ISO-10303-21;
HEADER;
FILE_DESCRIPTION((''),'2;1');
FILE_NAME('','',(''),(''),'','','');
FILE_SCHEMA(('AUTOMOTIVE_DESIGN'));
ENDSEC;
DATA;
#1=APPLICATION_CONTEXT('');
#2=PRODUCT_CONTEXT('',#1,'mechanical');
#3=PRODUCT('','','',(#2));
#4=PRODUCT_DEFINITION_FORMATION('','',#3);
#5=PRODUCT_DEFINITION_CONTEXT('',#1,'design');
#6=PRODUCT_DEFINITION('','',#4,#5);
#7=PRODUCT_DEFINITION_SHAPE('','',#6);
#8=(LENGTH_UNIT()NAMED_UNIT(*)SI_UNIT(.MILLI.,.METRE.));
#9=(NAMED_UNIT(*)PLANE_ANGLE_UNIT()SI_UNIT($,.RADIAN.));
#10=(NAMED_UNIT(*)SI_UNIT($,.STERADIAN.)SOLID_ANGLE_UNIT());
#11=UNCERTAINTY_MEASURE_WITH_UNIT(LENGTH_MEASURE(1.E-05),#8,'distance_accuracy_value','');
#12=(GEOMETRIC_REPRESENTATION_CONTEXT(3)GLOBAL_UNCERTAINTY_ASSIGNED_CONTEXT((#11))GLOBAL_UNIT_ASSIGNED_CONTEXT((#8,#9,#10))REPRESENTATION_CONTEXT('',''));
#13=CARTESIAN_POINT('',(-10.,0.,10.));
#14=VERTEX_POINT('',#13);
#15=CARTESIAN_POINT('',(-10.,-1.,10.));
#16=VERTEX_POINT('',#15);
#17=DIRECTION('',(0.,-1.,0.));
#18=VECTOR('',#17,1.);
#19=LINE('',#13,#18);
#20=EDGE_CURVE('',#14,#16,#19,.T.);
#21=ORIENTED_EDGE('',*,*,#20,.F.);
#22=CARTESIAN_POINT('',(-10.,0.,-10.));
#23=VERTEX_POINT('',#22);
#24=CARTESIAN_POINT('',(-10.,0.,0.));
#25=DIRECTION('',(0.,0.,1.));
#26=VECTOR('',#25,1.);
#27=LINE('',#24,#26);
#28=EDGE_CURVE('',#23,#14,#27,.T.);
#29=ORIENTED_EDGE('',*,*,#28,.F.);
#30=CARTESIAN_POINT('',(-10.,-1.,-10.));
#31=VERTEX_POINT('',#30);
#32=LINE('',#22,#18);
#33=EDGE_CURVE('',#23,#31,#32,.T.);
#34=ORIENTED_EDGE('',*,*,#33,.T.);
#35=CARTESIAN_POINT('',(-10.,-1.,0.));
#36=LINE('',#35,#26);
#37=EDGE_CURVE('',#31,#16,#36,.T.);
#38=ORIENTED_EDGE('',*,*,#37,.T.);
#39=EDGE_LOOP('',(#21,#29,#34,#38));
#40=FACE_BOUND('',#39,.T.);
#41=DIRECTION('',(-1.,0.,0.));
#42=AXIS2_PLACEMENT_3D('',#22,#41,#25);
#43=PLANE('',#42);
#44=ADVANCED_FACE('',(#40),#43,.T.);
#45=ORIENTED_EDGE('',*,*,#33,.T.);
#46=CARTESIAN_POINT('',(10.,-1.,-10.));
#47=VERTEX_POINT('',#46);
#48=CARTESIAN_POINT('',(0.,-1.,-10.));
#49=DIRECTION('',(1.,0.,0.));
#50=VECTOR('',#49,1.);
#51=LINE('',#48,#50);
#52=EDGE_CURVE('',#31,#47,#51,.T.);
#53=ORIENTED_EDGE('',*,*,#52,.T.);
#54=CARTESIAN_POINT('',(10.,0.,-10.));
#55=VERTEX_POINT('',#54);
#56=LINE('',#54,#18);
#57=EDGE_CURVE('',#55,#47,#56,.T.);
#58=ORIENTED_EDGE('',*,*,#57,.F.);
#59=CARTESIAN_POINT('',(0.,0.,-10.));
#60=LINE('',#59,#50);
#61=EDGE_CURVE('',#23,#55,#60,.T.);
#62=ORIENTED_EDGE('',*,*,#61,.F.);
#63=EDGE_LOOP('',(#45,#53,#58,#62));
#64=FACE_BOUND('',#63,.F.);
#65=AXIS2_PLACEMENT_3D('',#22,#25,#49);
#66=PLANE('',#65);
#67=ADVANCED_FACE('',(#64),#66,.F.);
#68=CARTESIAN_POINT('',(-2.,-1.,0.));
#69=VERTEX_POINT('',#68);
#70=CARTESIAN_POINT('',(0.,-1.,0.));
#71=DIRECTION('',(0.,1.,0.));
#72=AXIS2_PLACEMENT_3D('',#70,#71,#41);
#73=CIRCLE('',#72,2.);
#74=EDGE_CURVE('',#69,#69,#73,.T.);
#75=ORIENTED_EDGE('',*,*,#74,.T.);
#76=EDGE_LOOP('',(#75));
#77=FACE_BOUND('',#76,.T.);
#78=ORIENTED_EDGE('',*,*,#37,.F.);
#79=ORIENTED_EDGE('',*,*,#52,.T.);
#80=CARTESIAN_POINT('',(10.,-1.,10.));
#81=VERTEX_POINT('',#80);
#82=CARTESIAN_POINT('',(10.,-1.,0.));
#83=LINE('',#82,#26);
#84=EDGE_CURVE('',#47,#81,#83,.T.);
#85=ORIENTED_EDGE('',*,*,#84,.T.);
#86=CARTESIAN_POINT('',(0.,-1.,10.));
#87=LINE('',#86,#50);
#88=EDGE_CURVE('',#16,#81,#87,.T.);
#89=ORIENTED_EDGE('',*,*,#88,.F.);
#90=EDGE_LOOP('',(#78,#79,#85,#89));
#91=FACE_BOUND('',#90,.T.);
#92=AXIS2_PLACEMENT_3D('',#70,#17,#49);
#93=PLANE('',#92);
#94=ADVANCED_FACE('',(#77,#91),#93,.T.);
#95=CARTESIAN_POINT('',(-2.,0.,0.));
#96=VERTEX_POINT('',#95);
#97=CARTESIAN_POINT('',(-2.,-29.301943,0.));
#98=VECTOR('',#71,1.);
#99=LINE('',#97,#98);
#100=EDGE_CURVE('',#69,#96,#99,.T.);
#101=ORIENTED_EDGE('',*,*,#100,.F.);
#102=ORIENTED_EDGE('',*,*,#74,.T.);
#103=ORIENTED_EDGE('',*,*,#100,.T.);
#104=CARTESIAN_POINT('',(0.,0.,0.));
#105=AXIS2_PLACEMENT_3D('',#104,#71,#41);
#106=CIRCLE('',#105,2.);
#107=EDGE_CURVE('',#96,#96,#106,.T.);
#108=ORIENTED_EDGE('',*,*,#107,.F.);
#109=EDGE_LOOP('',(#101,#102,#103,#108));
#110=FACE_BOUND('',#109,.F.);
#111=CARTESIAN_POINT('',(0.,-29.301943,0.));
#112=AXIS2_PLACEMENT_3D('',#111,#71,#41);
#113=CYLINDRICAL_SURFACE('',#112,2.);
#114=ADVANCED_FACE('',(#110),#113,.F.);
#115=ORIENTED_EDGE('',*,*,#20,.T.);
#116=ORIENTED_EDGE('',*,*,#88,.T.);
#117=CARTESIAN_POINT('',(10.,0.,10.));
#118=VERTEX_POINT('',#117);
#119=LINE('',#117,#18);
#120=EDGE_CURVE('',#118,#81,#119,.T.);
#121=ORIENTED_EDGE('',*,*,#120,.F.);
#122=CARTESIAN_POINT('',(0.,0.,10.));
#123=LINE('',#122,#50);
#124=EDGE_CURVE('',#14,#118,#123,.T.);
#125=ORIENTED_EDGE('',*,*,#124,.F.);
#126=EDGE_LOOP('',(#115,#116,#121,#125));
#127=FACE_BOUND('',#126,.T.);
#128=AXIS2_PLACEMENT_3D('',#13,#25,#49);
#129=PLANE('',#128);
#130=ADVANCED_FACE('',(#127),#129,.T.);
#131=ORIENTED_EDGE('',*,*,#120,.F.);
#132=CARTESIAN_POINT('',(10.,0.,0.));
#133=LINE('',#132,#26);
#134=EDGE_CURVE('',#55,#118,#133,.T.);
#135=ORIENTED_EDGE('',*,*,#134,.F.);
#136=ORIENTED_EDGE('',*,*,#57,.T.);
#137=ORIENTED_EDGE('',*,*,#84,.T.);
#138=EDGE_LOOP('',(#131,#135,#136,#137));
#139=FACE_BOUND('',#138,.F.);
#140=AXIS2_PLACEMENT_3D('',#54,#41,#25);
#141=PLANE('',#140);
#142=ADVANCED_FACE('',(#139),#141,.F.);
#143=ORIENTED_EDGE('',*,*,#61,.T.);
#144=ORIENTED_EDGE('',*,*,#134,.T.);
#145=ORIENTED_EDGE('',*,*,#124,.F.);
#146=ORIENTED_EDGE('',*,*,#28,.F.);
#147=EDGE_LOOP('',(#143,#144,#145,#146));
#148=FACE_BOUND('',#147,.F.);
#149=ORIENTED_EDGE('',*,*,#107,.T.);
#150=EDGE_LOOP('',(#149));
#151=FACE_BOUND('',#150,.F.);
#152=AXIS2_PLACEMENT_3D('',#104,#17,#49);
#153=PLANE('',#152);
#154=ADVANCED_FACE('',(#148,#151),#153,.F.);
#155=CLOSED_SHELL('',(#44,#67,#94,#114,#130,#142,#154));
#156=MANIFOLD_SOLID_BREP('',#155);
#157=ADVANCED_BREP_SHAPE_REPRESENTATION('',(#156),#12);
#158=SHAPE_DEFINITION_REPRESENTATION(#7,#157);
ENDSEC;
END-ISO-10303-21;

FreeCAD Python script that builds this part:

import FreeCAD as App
import Part
import Sketcher
Q = App.Units.Quantity

doc = App.newDocument("Part")
body = doc.addObject("PartDesign::Body", "Body")

sketch1 = doc.addObject("Sketcher::SketchObject", "Sketch")
body.addObject(sketch1)
sketch1.AttachmentSupport = (doc.XZ_Plane, [""])
sketch1.MapMode = "FlatFace"
sketch1.addGeometry(Part.LineSegment(App.Vector(-10, 10, 0), App.Vector(-10, -10, 0)), False)
sketch1.addGeometry(Part.LineSegment(App.Vector(-10, -10, 0), App.Vector(10, -10, 0)), False)
sketch1.addGeometry(Part.LineSegment(App.Vector(10, -10, 0), App.Vector(10, 10, 0)), False)
sketch1.addGeometry(Part.LineSegment(App.Vector(10, 10, 0), App.Vector(-10, 10, 0)), False)
sketch1.addConstraint(Sketcher.Constraint("Coincident", 0, 2, 1, 1))
sketch1.addConstraint(Sketcher.Constraint("Coincident", 1, 2, 2, 1))
sketch1.addConstraint(Sketcher.Constraint("Coincident", 2, 2, 3, 1))
sketch1.addConstraint(Sketcher.Constraint("Coincident", 3, 2, 0, 1))
sketch1.addConstraint(Sketcher.Constraint("Vertical", 0))
sketch1.addConstraint(Sketcher.Constraint("Horizontal", 1))
sketch1.addConstraint(Sketcher.Constraint("Vertical", 2))
sketch1.addConstraint(Sketcher.Constraint("Horizontal", 3))
sketch1.addConstraint(Sketcher.Constraint("Symmetric", 0, 2, 2, 2, -1, 1))
sketch1.addConstraint(Sketcher.Constraint("Equal", 3, 0))
sketch1.addConstraint(Sketcher.Constraint("DistanceX", 1, 1, 1, 2, Q("20 mm")))
pad1 = doc.addObject("PartDesign::Pad", "Pad")
body.addObject(pad1)
pad1.Profile = sketch1
pad1.Length = 1

sketch2 = doc.addObject("Sketcher::SketchObject", "Sketch001")
body.addObject(sketch2)
sketch2.AttachmentSupport = (doc.XZ_Plane, [""])
sketch2.MapMode = "FlatFace"
sketch2.AttachmentOffset = App.Placement(App.Vector(0, 0, 1), App.Rotation())
sketch2.addGeometry(Part.Circle(App.Vector(0, 0, 0), App.Vector(0, 0, 1), 2), False)
sketch2.addConstraint(Sketcher.Constraint("Coincident", 0, 3, -1, 1))
sketch2.addConstraint(Sketcher.Constraint("Diameter", 0, Q("4 mm")))
doc.recompute()
hole = doc.addObject("PartDesign::Hole", "Hole")
body.addObject(hole)
hole.Profile = sketch2
hole.ThreadType = "None"
hole.Diameter = 4
hole.DepthType = "ThroughAll"

doc.recompute()
